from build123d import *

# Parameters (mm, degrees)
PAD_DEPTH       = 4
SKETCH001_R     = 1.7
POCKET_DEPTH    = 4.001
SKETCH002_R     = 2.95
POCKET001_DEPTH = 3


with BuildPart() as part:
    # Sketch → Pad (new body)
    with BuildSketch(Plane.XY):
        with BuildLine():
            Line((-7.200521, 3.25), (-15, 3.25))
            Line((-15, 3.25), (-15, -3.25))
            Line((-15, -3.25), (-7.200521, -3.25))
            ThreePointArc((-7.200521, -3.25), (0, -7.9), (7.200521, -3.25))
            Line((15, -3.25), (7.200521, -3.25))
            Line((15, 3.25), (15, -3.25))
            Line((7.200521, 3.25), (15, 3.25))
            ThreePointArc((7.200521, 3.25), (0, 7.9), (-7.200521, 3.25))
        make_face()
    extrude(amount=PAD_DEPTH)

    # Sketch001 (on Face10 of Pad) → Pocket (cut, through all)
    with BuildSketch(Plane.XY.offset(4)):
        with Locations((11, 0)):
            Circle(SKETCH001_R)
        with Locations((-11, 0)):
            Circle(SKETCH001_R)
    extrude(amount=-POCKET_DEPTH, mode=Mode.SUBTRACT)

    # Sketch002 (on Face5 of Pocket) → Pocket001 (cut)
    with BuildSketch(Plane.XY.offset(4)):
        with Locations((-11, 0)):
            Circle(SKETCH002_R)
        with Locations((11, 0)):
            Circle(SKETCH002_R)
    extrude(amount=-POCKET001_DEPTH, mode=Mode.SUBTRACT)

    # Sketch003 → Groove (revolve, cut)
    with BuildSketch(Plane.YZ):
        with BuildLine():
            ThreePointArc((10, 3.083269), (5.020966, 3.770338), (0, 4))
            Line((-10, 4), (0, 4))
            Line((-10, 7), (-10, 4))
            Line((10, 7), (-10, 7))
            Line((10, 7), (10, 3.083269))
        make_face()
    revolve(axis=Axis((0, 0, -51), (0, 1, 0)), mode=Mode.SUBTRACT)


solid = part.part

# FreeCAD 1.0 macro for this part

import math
import FreeCAD as App
import Part
import Sketcher
from FreeCAD import Vector
Q = App.Units.Quantity

doc = App.newDocument("Part")
body = doc.addObject("PartDesign::Body", "Body")

# Sketch on XY plane
sketch1 = body.newObject("Sketcher::SketchObject", "Sketch")
sketch1.AttachmentSupport = (doc.getObject("XY_Plane"), [""])
sketch1.MapMode = "FlatFace"
sketch1.addGeometry([
    Part.LineSegment(Vector(-7.200521, 3.25, 0), Vector(-15, 3.25, 0)),  # 0
    Part.LineSegment(Vector(-15, 3.25, 0), Vector(-15, -3.25, 0)),  # 1
    Part.LineSegment(Vector(-15, -3.25, 0), Vector(-7.200521, -3.25, 0)),  # 2
    Part.ArcOfCircle(Part.Circle(Vector(0, 0, 0), Vector(0, 0, 1), 7.9), math.radians(-155.707665), math.radians(-24.292335)),  # 3
    Part.LineSegment(Vector(7.200521, -3.25, 0), Vector(15, -3.25, 0)),  # 4
    Part.LineSegment(Vector(15, -3.25, 0), Vector(15, 3.25, 0)),  # 5
    Part.LineSegment(Vector(15, 3.25, 0), Vector(7.200521, 3.25, 0)),  # 6
    Part.ArcOfCircle(Part.Circle(Vector(0, 0, 0), Vector(0, 0, 1), 7.9), math.radians(24.292335), math.radians(155.707665)),  # 7
], False)
sketch1.addConstraint([
    Sketcher.Constraint("Coincident", 0, 2, 1, 1),
    Sketcher.Constraint("Coincident", 1, 2, 2, 1),
    Sketcher.Constraint("Coincident", 2, 2, 3, 1),
    Sketcher.Constraint("Coincident", 3, 2, 4, 1),
    Sketcher.Constraint("Coincident", 4, 2, 5, 1),
    Sketcher.Constraint("Coincident", 5, 2, 6, 1),
    Sketcher.Constraint("Coincident", 6, 2, 7, 1),
    Sketcher.Constraint("Coincident", 7, 2, 0, 1),
    Sketcher.Constraint("Horizontal", 0),
    Sketcher.Constraint("Vertical", 1),
    Sketcher.Constraint("Horizontal", 2),
    Sketcher.Constraint("Horizontal", 4),
    Sketcher.Constraint("Vertical", 5),
    Sketcher.Constraint("Horizontal", 6),
    Sketcher.Constraint("Coincident", 3, 3, -1, 1),
    Sketcher.Constraint("Coincident", 7, 3, -1, 1),
    Sketcher.Constraint("Equal", 3, 7),
    Sketcher.Constraint("Symmetric", 0, 2, 4, 2, -1, 1),
    Sketcher.Constraint("Horizontal", 2, 2, 3, 2),
    Sketcher.Constraint("Horizontal", 0, 2, 5, 2),
    Sketcher.Constraint("Radius", 3, Q("7.9 mm")),
    Sketcher.Constraint("DistanceY", 1, 2, 1, 1, Q("6.5 mm")),
    Sketcher.Constraint("DistanceX", 0, 2, -1, 1, Q("15 mm")),
])
pad1 = body.newObject("PartDesign::Pad", "Pad")
pad1.Profile = sketch1
pad1.Length = 4

# Sketch on XY plane
sketch2 = body.newObject("Sketcher::SketchObject", "Sketch001")
sketch2.AttachmentSupport = (doc.getObject("XY_Plane"), [""])
sketch2.MapMode = "FlatFace"
sketch2.AttachmentOffset = App.Placement(Vector(0, 0, 4), App.Rotation())
sketch2.addGeometry([
    Part.Circle(Vector(11, 0, 0), Vector(0, 0, 1), 1.7),
    Part.Circle(Vector(-11, 0, 0), Vector(0, 0, 1), 1.7),
], False)
sketch2.addConstraint([
    Sketcher.Constraint("Equal", 0, 1),
    Sketcher.Constraint("Symmetric", 0, 3, 1, 3, -1, 1),
    Sketcher.Constraint("PointOnObject", 0, 3, -1),
    Sketcher.Constraint("Diameter", 0, Q("3.4 mm")),
    Sketcher.Constraint("DistanceX", -1, 1, 0, 3, Q("11 mm")),
])
pocket1 = body.newObject("PartDesign::Pocket", "Pocket")
pocket1.Profile = sketch2
pocket1.Type = "ThroughAll"

# Sketch on XY plane
sketch3 = body.newObject("Sketcher::SketchObject", "Sketch002")
sketch3.AttachmentSupport = (doc.getObject("XY_Plane"), [""])
sketch3.MapMode = "FlatFace"
sketch3.AttachmentOffset = App.Placement(Vector(0, 0, 4), App.Rotation())
sketch3.addGeometry([
    Part.Circle(Vector(-11, 0, 0), Vector(0, 0, 1), 2.95),
    Part.Circle(Vector(11, 0, 0), Vector(0, 0, 1), 2.95),
], False)
sketch3.addConstraint([
    Sketcher.Constraint("Equal", 0, 1),
    Sketcher.Constraint("Symmetric", 0, 3, 1, 3, -1, 1),
    Sketcher.Constraint("PointOnObject", 0, 3, -1),
    Sketcher.Constraint("Diameter", 0, Q("5.9 mm")),
    Sketcher.Constraint("DistanceX", 0, 3, -1, 1, Q("11 mm")),
])
pocket2 = body.newObject("PartDesign::Pocket", "Pocket001")
pocket2.Profile = sketch3
pocket2.Length = 3

# Sketch on YZ plane
sketch4 = body.newObject("Sketcher::SketchObject", "Sketch003")
sketch4.AttachmentSupport = (doc.getObject("YZ_Plane"), [""])
sketch4.MapMode = "FlatFace"
sketch4.addGeometry([
    Part.ArcOfCircle(Part.Circle(Vector(0.000006, -50.999932, 0), Vector(0, 0, 1), 54.999932), math.radians(79.524311), math.radians(90.000006)),  # 0
    Part.LineSegment(Vector(10, 3.083269, 0), Vector(10, 7, 0)),  # 1
    Part.LineSegment(Vector(10, 7, 0), Vector(-10, 7, 0)),  # 2
    Part.LineSegment(Vector(-10, 7, 0), Vector(-10, 4, 0)),  # 3
    Part.LineSegment(Vector(-10, 4, 0), Vector(0, 4, 0)),  # 4
], False)
sketch4.addGeometry(Part.LineSegment(Vector(-10, -51, 0), Vector(10, -51, 0)), True)  # axis
sketch4.addConstraint([
    Sketcher.Constraint("Coincident", 0, 1, 1, 1),
    Sketcher.Constraint("Coincident", 1, 2, 2, 1),
    Sketcher.Constraint("Coincident", 2, 2, 3, 1),
    Sketcher.Constraint("Coincident", 3, 2, 4, 1),
    Sketcher.Constraint("Tangent", 4, 2, 0, 2),
    Sketcher.Constraint("Vertical", 1),
    Sketcher.Constraint("Horizontal", 2),
    Sketcher.Constraint("Vertical", 3),
    Sketcher.Constraint("Horizontal", 4),
    Sketcher.Constraint("Horizontal", 5),
    Sketcher.Constraint("PointOnObject", 4, 2, -2),
    Sketcher.Constraint("Vertical", 3, 2, 5, 1),
    Sketcher.Constraint("Vertical", 1, 2, 5, 2),
    Sketcher.Constraint("DistanceX", 2, 2, 2, 1, Q("20 mm")),
    Sketcher.Constraint("DistanceX", 4, 1, 4, 2, Q("10 mm")),
    Sketcher.Constraint("DistanceY", 3, 2, 3, 1, Q("3 mm")),
    Sketcher.Constraint("DistanceY", -1, 1, 1, 2, Q("7 mm")),
    Sketcher.Constraint("DistanceY", 5, 1, -1, 1, Q("51 mm")),
    Sketcher.Constraint("Radius", 0, Q("54.999932 mm")),
])
groove = body.newObject("PartDesign::Groove", "Groove")
groove.Profile = sketch4
groove.ReferenceAxis = (sketch4, ["Axis0"])
groove.Angle = 360

doc.recompute()
